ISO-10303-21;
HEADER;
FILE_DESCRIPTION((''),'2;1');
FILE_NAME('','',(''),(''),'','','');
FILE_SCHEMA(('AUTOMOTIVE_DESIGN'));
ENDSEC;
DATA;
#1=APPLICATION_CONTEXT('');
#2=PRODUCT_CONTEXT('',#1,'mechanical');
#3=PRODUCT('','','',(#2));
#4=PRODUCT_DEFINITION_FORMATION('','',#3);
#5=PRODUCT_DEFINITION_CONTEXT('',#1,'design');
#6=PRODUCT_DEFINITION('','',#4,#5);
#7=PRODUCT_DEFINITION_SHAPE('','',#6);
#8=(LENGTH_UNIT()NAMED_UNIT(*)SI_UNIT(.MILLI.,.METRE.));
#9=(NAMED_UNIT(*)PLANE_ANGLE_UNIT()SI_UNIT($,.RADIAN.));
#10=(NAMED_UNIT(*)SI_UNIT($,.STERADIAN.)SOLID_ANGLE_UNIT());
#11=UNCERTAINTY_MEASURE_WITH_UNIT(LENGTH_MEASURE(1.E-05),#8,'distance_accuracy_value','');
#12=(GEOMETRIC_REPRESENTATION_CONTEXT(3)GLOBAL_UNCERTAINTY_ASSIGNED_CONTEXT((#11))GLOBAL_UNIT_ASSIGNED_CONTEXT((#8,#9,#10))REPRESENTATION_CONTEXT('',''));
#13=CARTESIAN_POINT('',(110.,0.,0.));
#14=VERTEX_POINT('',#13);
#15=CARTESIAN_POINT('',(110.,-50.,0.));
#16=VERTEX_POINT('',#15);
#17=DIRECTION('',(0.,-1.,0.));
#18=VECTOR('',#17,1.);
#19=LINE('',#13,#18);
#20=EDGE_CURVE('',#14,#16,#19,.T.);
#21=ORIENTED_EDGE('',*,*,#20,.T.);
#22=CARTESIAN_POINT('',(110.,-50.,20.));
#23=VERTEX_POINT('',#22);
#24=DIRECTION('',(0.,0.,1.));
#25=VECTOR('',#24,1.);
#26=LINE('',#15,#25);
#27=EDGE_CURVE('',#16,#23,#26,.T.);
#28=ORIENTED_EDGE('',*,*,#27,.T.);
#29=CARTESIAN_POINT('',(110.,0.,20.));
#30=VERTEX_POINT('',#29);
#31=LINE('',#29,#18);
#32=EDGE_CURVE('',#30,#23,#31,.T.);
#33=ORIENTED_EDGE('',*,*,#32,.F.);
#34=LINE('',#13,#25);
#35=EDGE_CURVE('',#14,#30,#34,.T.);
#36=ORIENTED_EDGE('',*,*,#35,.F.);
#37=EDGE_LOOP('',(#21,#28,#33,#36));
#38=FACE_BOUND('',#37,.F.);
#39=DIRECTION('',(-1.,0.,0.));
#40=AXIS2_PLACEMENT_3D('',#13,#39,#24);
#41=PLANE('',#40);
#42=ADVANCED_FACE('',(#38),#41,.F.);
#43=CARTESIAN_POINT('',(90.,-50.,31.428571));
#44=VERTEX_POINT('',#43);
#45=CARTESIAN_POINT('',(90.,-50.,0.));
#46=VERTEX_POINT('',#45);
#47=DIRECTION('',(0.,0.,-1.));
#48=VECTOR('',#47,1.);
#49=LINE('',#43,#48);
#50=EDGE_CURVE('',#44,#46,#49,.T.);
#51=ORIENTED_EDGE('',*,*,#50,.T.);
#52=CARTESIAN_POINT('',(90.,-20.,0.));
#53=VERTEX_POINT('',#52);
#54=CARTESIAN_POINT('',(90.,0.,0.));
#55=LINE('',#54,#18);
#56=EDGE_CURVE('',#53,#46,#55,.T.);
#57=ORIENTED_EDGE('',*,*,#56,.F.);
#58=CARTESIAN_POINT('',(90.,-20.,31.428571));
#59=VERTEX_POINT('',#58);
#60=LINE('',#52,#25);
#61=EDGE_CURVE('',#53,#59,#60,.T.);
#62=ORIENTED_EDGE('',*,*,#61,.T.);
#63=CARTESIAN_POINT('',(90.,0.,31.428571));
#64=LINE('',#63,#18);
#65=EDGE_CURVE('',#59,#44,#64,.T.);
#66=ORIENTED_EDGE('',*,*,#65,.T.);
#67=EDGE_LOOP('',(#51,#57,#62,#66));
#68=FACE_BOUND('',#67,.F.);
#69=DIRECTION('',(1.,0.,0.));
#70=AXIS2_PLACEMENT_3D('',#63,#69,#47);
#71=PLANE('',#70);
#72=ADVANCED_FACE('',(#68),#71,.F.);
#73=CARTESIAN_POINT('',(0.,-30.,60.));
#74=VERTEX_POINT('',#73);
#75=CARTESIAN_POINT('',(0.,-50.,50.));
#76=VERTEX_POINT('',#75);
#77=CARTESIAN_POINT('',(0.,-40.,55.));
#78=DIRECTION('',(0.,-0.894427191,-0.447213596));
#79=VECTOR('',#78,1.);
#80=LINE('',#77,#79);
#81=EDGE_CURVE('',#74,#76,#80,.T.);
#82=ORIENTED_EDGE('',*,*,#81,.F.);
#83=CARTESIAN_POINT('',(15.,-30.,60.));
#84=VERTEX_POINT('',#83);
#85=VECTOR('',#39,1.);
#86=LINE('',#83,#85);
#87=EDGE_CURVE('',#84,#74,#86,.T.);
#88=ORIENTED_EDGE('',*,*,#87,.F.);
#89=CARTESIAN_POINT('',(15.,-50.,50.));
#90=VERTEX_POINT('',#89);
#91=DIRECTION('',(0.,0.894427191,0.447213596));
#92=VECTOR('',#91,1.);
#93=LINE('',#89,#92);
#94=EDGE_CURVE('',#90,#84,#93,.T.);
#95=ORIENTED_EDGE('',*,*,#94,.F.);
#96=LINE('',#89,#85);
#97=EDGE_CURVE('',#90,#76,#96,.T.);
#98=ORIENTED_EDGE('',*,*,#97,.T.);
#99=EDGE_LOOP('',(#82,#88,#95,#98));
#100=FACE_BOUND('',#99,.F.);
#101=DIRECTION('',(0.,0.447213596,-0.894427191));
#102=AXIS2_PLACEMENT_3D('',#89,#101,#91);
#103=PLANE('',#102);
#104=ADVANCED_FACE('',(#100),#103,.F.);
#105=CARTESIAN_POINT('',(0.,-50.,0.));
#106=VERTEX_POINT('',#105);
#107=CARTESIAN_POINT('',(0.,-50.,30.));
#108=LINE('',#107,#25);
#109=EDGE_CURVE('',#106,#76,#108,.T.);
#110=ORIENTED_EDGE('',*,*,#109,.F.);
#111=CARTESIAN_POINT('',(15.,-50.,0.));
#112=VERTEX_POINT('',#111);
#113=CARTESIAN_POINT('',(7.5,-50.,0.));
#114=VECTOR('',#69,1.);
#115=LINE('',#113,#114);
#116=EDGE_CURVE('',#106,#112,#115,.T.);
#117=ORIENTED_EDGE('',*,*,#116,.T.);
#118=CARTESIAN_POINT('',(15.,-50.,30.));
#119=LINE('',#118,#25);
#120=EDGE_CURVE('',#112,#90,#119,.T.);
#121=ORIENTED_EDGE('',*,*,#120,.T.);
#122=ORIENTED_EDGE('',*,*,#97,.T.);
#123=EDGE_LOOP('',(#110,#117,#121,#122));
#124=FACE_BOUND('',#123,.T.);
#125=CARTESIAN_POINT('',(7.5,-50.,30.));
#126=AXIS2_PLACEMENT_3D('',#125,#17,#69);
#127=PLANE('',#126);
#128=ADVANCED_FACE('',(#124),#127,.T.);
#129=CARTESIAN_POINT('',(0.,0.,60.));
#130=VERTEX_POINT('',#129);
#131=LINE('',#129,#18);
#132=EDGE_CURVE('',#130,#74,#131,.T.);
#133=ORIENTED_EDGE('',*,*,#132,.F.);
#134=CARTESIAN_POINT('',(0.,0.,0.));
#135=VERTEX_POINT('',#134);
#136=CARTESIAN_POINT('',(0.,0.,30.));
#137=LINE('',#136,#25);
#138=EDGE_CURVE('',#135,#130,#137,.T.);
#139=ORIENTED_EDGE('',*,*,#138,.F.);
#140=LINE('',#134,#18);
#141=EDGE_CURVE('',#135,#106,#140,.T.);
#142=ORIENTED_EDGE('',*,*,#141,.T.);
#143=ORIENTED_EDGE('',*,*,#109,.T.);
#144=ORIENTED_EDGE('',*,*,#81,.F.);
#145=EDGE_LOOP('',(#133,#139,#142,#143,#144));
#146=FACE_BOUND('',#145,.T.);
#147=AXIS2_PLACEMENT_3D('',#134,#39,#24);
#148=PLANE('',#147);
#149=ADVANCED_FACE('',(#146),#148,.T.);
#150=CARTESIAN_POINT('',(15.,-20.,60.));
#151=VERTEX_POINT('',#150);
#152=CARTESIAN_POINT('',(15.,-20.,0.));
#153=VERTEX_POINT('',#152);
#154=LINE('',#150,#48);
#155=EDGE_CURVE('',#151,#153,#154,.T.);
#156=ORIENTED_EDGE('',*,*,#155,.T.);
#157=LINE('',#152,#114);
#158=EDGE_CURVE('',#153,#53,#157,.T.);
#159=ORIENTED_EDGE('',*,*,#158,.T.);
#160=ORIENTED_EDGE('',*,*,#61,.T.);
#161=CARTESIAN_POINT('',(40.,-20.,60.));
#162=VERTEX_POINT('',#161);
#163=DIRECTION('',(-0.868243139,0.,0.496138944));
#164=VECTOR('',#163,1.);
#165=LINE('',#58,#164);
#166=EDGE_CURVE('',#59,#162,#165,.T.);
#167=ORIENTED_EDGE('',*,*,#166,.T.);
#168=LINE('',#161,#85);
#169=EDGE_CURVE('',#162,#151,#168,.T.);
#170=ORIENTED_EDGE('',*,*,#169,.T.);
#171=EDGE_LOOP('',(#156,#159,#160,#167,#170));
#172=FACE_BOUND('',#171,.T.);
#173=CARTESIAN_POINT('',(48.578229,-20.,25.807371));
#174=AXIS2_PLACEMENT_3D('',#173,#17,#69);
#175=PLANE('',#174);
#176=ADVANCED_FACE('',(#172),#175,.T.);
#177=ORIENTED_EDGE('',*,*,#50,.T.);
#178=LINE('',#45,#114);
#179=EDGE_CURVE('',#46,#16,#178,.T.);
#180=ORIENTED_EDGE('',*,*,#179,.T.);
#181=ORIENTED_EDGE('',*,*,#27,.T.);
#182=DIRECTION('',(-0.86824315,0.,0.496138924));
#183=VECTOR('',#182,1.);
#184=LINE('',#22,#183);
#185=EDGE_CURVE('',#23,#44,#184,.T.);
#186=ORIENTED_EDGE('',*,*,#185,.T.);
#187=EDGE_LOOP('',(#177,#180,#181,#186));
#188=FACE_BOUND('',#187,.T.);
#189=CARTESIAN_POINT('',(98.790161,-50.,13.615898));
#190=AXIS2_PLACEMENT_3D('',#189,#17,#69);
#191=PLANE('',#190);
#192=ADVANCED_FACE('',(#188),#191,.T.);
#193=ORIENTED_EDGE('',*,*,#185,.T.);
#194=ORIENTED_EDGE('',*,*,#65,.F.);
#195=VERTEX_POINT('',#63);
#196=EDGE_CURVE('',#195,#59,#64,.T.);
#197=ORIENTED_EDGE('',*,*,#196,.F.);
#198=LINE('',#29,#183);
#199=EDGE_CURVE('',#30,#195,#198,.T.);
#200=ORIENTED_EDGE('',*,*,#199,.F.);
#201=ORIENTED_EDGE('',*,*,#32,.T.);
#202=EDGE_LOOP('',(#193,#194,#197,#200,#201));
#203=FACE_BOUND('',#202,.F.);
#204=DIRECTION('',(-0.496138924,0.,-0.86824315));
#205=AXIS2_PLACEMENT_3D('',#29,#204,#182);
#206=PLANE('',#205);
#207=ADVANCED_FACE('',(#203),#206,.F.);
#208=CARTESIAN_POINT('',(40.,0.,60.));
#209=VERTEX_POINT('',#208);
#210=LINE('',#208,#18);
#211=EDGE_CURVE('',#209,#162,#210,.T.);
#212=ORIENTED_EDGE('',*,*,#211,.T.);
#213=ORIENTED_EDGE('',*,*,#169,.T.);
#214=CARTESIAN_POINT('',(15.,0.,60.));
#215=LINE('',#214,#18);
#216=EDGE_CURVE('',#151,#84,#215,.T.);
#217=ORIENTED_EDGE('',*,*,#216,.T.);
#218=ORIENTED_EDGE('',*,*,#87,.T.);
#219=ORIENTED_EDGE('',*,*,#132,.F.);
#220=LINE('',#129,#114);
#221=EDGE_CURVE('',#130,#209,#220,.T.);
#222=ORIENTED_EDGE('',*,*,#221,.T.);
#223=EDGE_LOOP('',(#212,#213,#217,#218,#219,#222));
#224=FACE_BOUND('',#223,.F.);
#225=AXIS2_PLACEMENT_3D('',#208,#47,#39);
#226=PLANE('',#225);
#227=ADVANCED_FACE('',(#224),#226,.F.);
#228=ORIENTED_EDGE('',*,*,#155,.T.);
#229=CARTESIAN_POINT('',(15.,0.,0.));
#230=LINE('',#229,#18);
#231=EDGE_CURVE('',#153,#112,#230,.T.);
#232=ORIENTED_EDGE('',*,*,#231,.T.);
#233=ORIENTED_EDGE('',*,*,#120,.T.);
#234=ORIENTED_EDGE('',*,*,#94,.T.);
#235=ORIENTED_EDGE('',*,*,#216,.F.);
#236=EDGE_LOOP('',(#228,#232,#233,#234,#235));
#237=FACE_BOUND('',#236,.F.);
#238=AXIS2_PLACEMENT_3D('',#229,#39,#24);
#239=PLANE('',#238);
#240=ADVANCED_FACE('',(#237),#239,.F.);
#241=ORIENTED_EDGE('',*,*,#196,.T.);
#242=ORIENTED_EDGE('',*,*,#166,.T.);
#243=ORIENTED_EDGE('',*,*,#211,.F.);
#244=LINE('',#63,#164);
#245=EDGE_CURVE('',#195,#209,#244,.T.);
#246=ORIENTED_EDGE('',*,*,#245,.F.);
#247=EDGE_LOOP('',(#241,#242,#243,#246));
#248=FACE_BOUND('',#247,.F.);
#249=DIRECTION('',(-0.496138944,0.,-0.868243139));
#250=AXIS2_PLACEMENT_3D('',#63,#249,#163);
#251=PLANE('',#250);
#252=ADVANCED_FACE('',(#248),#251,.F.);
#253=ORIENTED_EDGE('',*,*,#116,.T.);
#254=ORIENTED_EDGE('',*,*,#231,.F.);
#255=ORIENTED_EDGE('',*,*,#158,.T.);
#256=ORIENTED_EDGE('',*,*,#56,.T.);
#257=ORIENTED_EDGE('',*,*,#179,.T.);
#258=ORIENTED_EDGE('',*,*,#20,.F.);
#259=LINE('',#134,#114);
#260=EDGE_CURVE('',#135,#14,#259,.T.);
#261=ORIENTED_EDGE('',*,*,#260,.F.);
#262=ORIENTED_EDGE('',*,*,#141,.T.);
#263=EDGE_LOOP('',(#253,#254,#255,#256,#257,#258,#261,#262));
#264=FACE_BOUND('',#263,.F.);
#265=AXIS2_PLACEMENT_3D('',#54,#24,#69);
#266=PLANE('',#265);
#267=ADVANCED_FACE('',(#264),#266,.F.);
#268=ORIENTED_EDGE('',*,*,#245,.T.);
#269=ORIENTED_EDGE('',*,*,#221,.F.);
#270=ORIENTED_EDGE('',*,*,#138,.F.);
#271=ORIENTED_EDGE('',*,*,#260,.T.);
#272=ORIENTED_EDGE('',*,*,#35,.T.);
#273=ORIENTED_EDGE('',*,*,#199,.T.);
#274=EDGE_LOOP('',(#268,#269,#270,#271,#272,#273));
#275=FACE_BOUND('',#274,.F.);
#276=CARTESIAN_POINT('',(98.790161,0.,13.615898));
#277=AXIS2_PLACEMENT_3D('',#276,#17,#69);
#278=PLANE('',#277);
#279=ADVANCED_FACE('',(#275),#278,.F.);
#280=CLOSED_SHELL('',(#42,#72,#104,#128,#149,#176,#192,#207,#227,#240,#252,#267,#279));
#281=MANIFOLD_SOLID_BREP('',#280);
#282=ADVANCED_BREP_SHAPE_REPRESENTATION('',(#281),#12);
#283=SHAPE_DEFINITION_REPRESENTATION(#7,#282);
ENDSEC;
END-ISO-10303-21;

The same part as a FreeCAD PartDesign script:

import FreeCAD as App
import Part
import Sketcher

V = App.Vector
Q = App.Units.Quantity


def add_polygon(sketch, points):
    """Adds a closed chain of lines whose ends are joined by coincident constraints."""
    first, n = sketch.GeometryCount, len(points)
    for a, b in zip(points, points[1:] + points[:1]):
        sketch.addGeometry(Part.LineSegment(App.Vector(*a, 0), App.Vector(*b, 0)), False)
    for i in range(n):
        sketch.addConstraint(Sketcher.Constraint("Coincident", first + i, 2, first + (i + 1) % n, 1))

doc = App.newDocument("Part")
body = doc.addObject("PartDesign::Body", "Body")

# Sketch on XZ plane
sketch1 = body.newObject("Sketcher::SketchObject", "Sketch")
sketch1.AttachmentSupport = (doc.getObject("XZ_Plane"), [""])
sketch1.MapMode = "FlatFace"
add_polygon(sketch1, [(0, 60), (0, 0), (15, 0), (15, 60)])  # lines 0-3
sketch1.addConstraint([
    Sketcher.Constraint("Vertical", 0),
    Sketcher.Constraint("Horizontal", 1),
    Sketcher.Constraint("Vertical", 2),
    Sketcher.Constraint("Horizontal", 3),
    Sketcher.Constraint("Coincident", 0, 2, -1, 1),
    Sketcher.Constraint("DistanceX", 1, 1, 1, 2, Q("15 mm")),
    Sketcher.Constraint("DistanceY", 0, 2, 0, 1, Q("60 mm")),
])
pad1 = body.newObject("PartDesign::Pad", "Pad")
pad1.Profile = sketch1
pad1.Length = 50

# Sketch on XZ plane
sketch2 = body.newObject("Sketcher::SketchObject", "Sketch001")
sketch2.AttachmentSupport = (doc.getObject("XZ_Plane"), [""])
sketch2.MapMode = "FlatFace"
add_polygon(sketch2, [(15, 60), (15, 0), (90, 0), (90, 31.428571), (40, 60)])  # lines 0-4
sketch2.addConstraint([
    Sketcher.Constraint("Vertical", 0),
    Sketcher.Constraint("Horizontal", 1),
    Sketcher.Constraint("Vertical", 2),
    Sketcher.Constraint("Horizontal", 4),
    Sketcher.Constraint("PointOnObject", 0, 2, -1),
    Sketcher.Constraint("DistanceX", 1, 1, 1, 2, Q("75 mm")),
    Sketcher.Constraint("DistanceX", 4, 2, 4, 1, Q("25 mm")),
    Sketcher.Constraint("DistanceY", 0, 2, 0, 1, Q("60 mm")),
    Sketcher.Constraint("DistanceX", -1, 1, 0, 2, Q("15 mm")),
    Sketcher.Constraint("DistanceY", 2, 1, 2, 2, Q("31.428571 mm")),
])
pad2 = body.newObject("PartDesign::Pad", "Pad001")
pad2.Profile = sketch2
pad2.Length = 20

# Sketch on XZ plane
sketch3 = body.newObject("Sketcher::SketchObject", "Sketch002")
sketch3.AttachmentSupport = (doc.getObject("XZ_Plane"), [""])
sketch3.MapMode = "FlatFace"
add_polygon(sketch3, [(90, 31.428571), (90, 0), (110, 0), (110, 20)])  # lines 0-3
sketch3.addConstraint([
    Sketcher.Constraint("Vertical", 0),
    Sketcher.Constraint("Horizontal", 1),
    Sketcher.Constraint("Vertical", 2),
    Sketcher.Constraint("PointOnObject", 0, 2, -1),
    Sketcher.Constraint("Equal", 1, 2),
    Sketcher.Constraint("DistanceX", 1, 1, 1, 2, Q("20 mm")),
    Sketcher.Constraint("DistanceX", -1, 1, 0, 2, Q("90 mm")),
    Sketcher.Constraint("DistanceY", 0, 2, 0, 1, Q("31.428571 mm")),
])
pad3 = body.newObject("PartDesign::Pad", "Pad002")
pad3.Profile = sketch3
pad3.Length = 50

# Sketch on YZ plane
sketch4 = body.newObject("Sketcher::SketchObject", "Sketch003")
sketch4.AttachmentSupport = (doc.getObject("YZ_Plane"), [""])
sketch4.MapMode = "FlatFace"
sketch4.AttachmentOffset = App.Placement(V(0, 0, 15), App.Rotation())
add_polygon(sketch4, [(-50, 60), (-50, 50), (-30, 60)])  # lines 0-2
sketch4.addConstraint([
    Sketcher.Constraint("Vertical", 0),
    Sketcher.Constraint("Horizontal", 2),
    Sketcher.Constraint("DistanceX", 2, 2, 2, 1, Q("20 mm")),
    Sketcher.Constraint("DistanceY", 0, 2, 0, 1, Q("10 mm")),
    Sketcher.Constraint("DistanceX", 0, 2, -1, 1, Q("50 mm")),
    Sketcher.Constraint("DistanceY", -1, 1, 0, 2, Q("50 mm")),
])
pocket1 = body.newObject("PartDesign::Pocket", "Pocket")
pocket1.Profile = sketch4
pocket1.Type = "ThroughAll"

doc.recompute()
